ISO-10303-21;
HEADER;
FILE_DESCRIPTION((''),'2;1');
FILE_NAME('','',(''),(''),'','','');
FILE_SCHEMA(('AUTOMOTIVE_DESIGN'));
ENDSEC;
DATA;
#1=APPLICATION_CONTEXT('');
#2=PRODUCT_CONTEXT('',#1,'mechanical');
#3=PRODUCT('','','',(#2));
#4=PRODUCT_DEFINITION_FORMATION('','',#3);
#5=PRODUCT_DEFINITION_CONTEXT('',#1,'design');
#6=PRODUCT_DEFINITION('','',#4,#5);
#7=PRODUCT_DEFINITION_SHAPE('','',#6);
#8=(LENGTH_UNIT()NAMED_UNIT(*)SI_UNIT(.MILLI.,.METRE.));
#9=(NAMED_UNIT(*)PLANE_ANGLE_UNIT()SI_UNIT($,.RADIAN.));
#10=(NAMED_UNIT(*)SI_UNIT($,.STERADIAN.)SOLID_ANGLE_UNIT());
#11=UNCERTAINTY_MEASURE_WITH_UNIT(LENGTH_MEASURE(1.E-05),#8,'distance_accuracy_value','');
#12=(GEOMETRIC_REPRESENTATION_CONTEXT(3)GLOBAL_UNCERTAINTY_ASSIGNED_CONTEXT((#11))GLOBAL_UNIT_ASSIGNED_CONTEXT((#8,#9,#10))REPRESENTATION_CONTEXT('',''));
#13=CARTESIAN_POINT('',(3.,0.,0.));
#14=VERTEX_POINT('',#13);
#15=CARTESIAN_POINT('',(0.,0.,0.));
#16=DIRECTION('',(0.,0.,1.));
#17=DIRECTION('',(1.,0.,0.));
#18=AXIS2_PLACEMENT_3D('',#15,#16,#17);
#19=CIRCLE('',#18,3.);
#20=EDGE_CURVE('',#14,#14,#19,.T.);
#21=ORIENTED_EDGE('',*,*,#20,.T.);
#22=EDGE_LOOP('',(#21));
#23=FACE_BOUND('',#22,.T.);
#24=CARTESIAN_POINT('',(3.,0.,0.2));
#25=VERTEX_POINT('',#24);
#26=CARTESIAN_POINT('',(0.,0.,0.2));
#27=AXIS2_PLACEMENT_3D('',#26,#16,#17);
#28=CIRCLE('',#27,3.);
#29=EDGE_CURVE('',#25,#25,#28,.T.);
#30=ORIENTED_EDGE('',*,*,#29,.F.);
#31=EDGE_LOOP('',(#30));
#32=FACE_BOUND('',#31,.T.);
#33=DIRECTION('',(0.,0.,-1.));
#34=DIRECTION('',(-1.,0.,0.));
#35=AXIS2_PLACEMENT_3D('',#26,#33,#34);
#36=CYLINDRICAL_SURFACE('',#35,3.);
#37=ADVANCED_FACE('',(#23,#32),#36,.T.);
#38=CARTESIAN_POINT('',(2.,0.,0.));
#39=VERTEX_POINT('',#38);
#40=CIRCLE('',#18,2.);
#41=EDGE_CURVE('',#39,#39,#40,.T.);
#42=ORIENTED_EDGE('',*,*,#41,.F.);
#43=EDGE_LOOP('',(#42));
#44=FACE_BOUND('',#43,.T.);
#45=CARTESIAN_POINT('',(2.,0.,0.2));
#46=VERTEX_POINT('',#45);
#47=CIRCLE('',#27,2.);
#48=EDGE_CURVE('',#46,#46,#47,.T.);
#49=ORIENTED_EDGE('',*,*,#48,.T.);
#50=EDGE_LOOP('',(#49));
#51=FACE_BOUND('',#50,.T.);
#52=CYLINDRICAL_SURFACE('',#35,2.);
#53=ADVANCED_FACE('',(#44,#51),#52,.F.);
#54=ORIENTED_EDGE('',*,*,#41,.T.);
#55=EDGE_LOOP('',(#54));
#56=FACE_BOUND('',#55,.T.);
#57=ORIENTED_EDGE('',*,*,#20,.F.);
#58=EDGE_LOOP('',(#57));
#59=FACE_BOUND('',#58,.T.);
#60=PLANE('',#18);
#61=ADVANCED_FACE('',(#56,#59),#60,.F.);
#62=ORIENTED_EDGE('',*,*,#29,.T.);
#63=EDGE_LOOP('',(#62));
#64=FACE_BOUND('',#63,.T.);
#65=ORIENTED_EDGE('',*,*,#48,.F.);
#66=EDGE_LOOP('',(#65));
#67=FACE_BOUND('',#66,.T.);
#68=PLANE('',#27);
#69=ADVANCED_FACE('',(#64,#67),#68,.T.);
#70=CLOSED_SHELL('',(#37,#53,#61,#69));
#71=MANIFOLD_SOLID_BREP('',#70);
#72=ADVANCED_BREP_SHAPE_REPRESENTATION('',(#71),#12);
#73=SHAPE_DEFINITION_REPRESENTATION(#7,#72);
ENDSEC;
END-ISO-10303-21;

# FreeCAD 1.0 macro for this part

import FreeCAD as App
import Part
import Sketcher
Q = App.Units.Quantity

doc = App.newDocument("Part")
body = doc.addObject("PartDesign::Body", "Body")

sketch1 = body.newObject("Sketcher::SketchObject", "Sketch")
sketch1.AttachmentSupport = (doc.getObject("XY_Plane"), [""])
sketch1.MapMode = "FlatFace"
sketch1.addGeometry(Part.Circle(App.Vector(0, 0, 0), App.Vector(0, 0, 1), 3), False)
sketch1.addGeometry(Part.Circle(App.Vector(0, 0, 0), App.Vector(0, 0, 1), 2), False)
sketch1.addConstraint(Sketcher.Constraint("Coincident", 0, 3, -1, 1))
sketch1.addConstraint(Sketcher.Constraint("Coincident", 1, 3, -1, 1))
sketch1.addConstraint(Sketcher.Constraint("Diameter", 0, Q("6 mm")))
sketch1.addConstraint(Sketcher.Constraint("Diameter", 1, Q("4 mm")))
pad1 = body.newObject("PartDesign::Pad", "Pad")
pad1.Profile = sketch1
pad1.Length = 0.2

doc.recompute()
